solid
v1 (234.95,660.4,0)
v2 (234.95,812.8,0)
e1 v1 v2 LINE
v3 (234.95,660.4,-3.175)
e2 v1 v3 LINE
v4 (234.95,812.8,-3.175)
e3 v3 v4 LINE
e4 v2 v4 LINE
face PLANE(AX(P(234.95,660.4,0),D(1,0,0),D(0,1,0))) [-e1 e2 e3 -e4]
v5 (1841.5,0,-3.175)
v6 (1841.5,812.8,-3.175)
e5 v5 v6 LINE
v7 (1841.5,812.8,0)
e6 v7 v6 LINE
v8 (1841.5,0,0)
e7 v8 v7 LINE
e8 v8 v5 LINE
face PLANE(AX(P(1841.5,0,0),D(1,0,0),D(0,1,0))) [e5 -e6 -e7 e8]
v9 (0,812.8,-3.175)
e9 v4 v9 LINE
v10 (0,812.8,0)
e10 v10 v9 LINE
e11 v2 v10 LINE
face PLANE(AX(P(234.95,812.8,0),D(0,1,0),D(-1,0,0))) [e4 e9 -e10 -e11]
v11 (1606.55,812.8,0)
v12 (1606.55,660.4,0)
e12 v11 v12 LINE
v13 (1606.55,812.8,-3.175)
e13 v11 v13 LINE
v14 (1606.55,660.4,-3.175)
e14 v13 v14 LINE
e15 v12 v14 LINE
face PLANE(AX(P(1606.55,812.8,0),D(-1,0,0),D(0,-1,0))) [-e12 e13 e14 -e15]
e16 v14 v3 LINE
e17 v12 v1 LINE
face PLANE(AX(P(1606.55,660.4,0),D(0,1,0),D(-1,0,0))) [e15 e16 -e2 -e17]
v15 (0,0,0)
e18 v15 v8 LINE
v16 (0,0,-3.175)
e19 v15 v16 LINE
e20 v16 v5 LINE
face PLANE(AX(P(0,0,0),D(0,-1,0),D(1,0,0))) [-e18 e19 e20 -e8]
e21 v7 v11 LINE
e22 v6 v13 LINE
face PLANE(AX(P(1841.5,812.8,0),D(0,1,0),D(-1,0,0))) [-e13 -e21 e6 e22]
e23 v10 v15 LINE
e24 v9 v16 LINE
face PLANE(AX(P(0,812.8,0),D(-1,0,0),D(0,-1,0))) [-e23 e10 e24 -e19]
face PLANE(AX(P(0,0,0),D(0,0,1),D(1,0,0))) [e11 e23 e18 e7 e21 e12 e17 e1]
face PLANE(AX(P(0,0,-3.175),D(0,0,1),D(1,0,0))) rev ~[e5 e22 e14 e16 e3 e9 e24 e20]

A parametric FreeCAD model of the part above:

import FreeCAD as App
import Part
import Sketcher
Q = App.Units.Quantity


def add_polygon(sketch, points):
    """Adds a closed chain of lines whose ends are joined by coincident constraints."""
    first, n = sketch.GeometryCount, len(points)
    for a, b in zip(points, points[1:] + points[:1]):
        sketch.addGeometry(Part.LineSegment(App.Vector(*a, 0), App.Vector(*b, 0)), False)
    for i in range(n):
        sketch.addConstraint(Sketcher.Constraint("Coincident", first + i, 2, first + (i + 1) % n, 1))

doc = App.newDocument("Part")
body = doc.addObject("PartDesign::Body", "Body")

# Sketch on XY plane
sketch1 = body.newObject("Sketcher::SketchObject", "Sketch")
sketch1.AttachmentSupport = (doc.getObject("XY_Plane"), [""])
sketch1.MapMode = "FlatFace"
add_polygon(sketch1, [(0, 813), (0, 0), (1842, 0), (1842, 813), (1607, 813), (1607, 660), (235, 660), (235, 813)])  # lines 0-7
sketch1.addConstraint(Sketcher.Constraint("Vertical", 0))
sketch1.addConstraint(Sketcher.Constraint("Horizontal", 1))
sketch1.addConstraint(Sketcher.Constraint("Vertical", 2))
sketch1.addConstraint(Sketcher.Constraint("Horizontal", 3))
sketch1.addConstraint(Sketcher.Constraint("Vertical", 4))
sketch1.addConstraint(Sketcher.Constraint("Horizontal", 5))
sketch1.addConstraint(Sketcher.Constraint("Vertical", 6))
sketch1.addConstraint(Sketcher.Constraint("Horizontal", 7))
sketch1.addConstraint(Sketcher.Constraint("Coincident", 0, 2, -1, 1))
sketch1.addConstraint(Sketcher.Constraint("Horizontal", 3, 2, 6, 2))
sketch1.addConstraint(Sketcher.Constraint("Equal", 3, 7))
sketch1.addConstraint(Sketcher.Constraint("DistanceY", 0, 2, 0, 1, Q("32 in")))
sketch1.addConstraint(Sketcher.Constraint("DistanceY", 4, 2, 4, 1, Q("6 in")))
sketch1.addConstraint(Sketcher.Constraint("DistanceX", 1, 1, 1, 2, Q("72.5 in")))
sketch1.addConstraint(Sketcher.Constraint("DistanceX", 3, 2, 3, 1, Q("9.25 in")))
pad1 = body.newObject("PartDesign::Pad", "Pad")
pad1.Profile = sketch1
pad1.Length = Q("0.125 in")
pad1.Reversed = True

doc.recompute()
